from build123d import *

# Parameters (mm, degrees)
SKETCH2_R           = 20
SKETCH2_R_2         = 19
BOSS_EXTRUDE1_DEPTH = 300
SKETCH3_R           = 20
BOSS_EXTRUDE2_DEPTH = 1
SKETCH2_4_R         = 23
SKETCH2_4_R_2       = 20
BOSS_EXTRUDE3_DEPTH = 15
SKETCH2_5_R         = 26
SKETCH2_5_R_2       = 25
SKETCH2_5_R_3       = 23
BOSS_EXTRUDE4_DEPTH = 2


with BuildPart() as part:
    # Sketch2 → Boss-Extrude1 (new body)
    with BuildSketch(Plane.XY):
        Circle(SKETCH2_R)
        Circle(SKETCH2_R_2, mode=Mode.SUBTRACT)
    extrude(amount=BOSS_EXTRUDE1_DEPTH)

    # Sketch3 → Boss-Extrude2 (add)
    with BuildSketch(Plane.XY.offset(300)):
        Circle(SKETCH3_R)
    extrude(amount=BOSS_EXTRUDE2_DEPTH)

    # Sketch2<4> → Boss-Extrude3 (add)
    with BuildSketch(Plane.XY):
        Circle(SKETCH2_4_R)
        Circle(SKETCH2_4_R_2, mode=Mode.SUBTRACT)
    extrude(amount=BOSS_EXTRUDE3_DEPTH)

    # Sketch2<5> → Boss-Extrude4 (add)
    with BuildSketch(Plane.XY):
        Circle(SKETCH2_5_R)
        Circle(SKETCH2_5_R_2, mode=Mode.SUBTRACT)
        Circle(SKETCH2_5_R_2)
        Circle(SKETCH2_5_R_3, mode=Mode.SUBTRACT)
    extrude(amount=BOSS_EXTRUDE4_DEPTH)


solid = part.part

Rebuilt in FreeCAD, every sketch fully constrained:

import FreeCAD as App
import Part
import Sketcher

V = App.Vector
Q = App.Units.Quantity

doc = App.newDocument("Part")
body = doc.addObject("PartDesign::Body", "Body")

sketch1 = body.newObject("Sketcher::SketchObject", "Sketch")
sketch1.AttachmentSupport = (doc.getObject("XY_Plane"), [""])
sketch1.MapMode = "FlatFace"
sketch1.addGeometry(Part.Circle(V(0, 0, 0), V(0, 0, 1), 20), False)
sketch1.addGeometry(Part.Circle(V(0, 0, 0), V(0, 0, 1), 19), False)
sketch1.addConstraint(Sketcher.Constraint("Coincident", 0, 3, -1, 1))
sketch1.addConstraint(Sketcher.Constraint("Coincident", 1, 3, -1, 1))
sketch1.addConstraint(Sketcher.Constraint("Diameter", 0, Q("40 mm")))
sketch1.addConstraint(Sketcher.Constraint("Diameter", 1, Q("38 mm")))
pad1 = body.newObject("PartDesign::Pad", "Pad")
pad1.Profile = sketch1
pad1.Length = 300

sketch2 = body.newObject("Sketcher::SketchObject", "Sketch001")
sketch2.AttachmentSupport = (doc.getObject("XY_Plane"), [""])
sketch2.MapMode = "FlatFace"
sketch2.AttachmentOffset = App.Placement(V(0, 0, 300), App.Rotation())
sketch2.addGeometry(Part.Circle(V(0, 0, 0), V(0, 0, 1), 20), False)
sketch2.addConstraint(Sketcher.Constraint("Coincident", 0, 3, -1, 1))
sketch2.addConstraint(Sketcher.Constraint("Diameter", 0, Q("40 mm")))
pad2 = body.newObject("PartDesign::Pad", "Pad001")
pad2.Profile = sketch2
pad2.Length = 1

sketch3 = body.newObject("Sketcher::SketchObject", "Sketch002")
sketch3.AttachmentSupport = (doc.getObject("XY_Plane"), [""])
sketch3.MapMode = "FlatFace"
sketch3.addGeometry(Part.Circle(V(0, 0, 0), V(0, 0, 1), 23), False)
sketch3.addGeometry(Part.Circle(V(0, 0, 0), V(0, 0, 1), 20), False)
sketch3.addConstraint(Sketcher.Constraint("Coincident", 0, 3, -1, 1))
sketch3.addConstraint(Sketcher.Constraint("Coincident", 1, 3, -1, 1))
sketch3.addConstraint(Sketcher.Constraint("Diameter", 0, Q("46 mm")))
sketch3.addConstraint(Sketcher.Constraint("Diameter", 1, Q("40 mm")))
pad3 = body.newObject("PartDesign::Pad", "Pad002")
pad3.Profile = sketch3
pad3.Length = 15

sketch4 = body.newObject("Sketcher::SketchObject", "Sketch003")
sketch4.AttachmentSupport = (doc.getObject("XY_Plane"), [""])
sketch4.MapMode = "FlatFace"
sketch4.addGeometry(Part.Circle(V(0, 0, 0), V(0, 0, 1), 26), False)
sketch4.addGeometry(Part.Circle(V(0, 0, 0), V(0, 0, 1), 23), False)
sketch4.addConstraint(Sketcher.Constraint("Coincident", 0, 3, -1, 1))
sketch4.addConstraint(Sketcher.Constraint("Coincident", 1, 3, -1, 1))
sketch4.addConstraint(Sketcher.Constraint("Diameter", 0, Q("52 mm")))
sketch4.addConstraint(Sketcher.Constraint("Diameter", 1, Q("46 mm")))
pad4 = body.newObject("PartDesign::Pad", "Pad003")
pad4.Profile = sketch4
pad4.Length = 2

doc.recompute()
